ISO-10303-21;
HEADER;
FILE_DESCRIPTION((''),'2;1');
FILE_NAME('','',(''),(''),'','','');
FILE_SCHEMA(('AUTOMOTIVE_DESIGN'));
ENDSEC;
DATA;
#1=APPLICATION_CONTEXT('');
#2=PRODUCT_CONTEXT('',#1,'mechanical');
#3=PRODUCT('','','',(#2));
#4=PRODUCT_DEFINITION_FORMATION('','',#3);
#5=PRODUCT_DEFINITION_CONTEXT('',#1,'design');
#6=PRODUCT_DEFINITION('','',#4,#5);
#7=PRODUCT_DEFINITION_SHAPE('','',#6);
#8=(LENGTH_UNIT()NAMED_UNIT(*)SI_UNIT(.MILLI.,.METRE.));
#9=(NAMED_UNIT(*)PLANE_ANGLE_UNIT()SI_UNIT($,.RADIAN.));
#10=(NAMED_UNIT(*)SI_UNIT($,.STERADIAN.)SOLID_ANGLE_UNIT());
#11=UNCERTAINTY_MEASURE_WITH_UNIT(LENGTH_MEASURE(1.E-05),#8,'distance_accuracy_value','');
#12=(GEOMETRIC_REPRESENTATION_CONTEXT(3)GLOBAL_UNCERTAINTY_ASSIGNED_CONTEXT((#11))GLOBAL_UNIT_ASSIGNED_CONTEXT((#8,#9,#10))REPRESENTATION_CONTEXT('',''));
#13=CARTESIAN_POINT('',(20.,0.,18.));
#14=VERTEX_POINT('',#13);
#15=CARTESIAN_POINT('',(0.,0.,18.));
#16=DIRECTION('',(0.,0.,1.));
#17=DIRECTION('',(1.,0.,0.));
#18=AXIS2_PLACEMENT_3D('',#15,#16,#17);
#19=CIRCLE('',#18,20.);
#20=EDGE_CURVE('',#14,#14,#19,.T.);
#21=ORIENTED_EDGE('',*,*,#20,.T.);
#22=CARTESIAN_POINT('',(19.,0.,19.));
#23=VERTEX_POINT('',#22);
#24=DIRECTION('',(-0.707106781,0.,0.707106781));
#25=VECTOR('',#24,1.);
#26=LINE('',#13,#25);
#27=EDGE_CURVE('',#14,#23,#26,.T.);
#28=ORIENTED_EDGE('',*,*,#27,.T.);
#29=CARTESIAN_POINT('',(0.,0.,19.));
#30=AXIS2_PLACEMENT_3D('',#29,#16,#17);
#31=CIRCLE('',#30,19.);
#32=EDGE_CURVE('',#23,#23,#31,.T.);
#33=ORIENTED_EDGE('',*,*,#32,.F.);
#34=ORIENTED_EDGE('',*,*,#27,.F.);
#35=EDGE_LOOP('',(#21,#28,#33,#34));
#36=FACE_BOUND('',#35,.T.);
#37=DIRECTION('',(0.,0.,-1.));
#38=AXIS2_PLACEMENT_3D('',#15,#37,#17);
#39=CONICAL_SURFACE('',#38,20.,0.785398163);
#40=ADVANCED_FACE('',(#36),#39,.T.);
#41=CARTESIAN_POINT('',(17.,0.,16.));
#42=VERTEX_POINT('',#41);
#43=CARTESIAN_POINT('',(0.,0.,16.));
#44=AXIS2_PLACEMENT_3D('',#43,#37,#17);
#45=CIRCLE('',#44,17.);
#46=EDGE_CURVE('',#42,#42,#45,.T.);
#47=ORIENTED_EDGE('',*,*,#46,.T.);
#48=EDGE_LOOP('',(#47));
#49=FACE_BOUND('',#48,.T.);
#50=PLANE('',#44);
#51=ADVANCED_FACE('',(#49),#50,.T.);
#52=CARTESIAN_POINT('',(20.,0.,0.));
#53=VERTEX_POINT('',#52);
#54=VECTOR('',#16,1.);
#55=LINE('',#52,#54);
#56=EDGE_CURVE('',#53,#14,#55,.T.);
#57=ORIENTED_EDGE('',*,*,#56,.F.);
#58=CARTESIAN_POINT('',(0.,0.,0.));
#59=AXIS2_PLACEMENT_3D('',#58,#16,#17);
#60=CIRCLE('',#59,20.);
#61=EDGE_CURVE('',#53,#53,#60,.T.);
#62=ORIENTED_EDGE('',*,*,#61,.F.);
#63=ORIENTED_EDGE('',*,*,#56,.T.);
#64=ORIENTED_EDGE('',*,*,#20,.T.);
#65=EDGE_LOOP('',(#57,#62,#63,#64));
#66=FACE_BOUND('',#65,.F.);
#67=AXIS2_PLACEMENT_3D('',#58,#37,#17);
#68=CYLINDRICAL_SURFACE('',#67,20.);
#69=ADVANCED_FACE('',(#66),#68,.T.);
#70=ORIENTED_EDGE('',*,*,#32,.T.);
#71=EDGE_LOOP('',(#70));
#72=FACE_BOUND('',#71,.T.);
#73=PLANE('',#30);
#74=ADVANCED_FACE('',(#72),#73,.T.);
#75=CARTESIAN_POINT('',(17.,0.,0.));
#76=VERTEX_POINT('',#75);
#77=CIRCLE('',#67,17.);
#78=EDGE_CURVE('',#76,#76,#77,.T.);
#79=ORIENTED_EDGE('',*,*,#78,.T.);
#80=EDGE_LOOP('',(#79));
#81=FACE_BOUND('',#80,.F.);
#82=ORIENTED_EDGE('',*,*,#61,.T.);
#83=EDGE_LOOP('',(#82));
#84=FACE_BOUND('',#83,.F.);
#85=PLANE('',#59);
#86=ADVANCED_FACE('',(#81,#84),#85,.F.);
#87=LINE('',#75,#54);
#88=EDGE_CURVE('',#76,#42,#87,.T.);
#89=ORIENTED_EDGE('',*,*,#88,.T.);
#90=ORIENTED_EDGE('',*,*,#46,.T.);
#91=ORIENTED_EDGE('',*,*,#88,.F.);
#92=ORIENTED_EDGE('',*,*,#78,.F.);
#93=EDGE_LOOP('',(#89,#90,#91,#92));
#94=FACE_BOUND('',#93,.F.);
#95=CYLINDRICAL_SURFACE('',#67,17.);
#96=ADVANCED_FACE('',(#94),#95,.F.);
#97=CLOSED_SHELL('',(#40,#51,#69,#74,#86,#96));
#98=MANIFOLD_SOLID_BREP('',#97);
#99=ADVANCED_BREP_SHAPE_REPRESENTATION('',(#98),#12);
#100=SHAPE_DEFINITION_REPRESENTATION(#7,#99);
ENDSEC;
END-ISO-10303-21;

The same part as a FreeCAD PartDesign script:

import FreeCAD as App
import Part
import Sketcher
from FreeCAD import Vector
Q = App.Units.Quantity


def edges_at(feature, points):
    """Names of the edges that pass closest to the given points."""
    edges = feature.Shape.Edges
    near = lambda p: min(range(len(edges)), key=lambda i: edges[i].distToShape(Part.Vertex(*p))[0])
    return sorted({f"Edge{near(p) + 1}" for p in points})

doc = App.newDocument("Part")
body = doc.addObject("PartDesign::Body", "Body")

# Sketch on XY plane
sketch1 = body.newObject("Sketcher::SketchObject", "Sketch")
sketch1.AttachmentSupport = (doc.getObject("XY_Plane"), [""])
sketch1.MapMode = "FlatFace"
sketch1.addGeometry(Part.Circle(Vector(0, 0, 0), Vector(0, 0, 1), 20), False)
sketch1.addConstraint([
    Sketcher.Constraint("Coincident", 0, 3, -1, 1),
    Sketcher.Constraint("Diameter", 0, Q("40 mm")),
])
pad1 = body.newObject("PartDesign::Pad", "Pad")
pad1.Profile = sketch1
pad1.Length = 19

# Sketch on XY plane
sketch2 = body.newObject("Sketcher::SketchObject", "Sketch001")
sketch2.AttachmentSupport = (doc.getObject("XY_Plane"), [""])
sketch2.MapMode = "FlatFace"
sketch2.addGeometry(Part.Circle(Vector(0, 0, 0), Vector(0, 0, 1), 17), False)
sketch2.addConstraint([
    Sketcher.Constraint("Coincident", 0, 3, -1, 1),
    Sketcher.Constraint("Diameter", 0, Q("34 mm")),
])
pocket1 = body.newObject("PartDesign::Pocket", "Pocket")
pocket1.Profile = sketch2
pocket1.Length = 16
pocket1.Reversed = True
doc.recompute()

chamfer = body.newObject("PartDesign::Chamfer", "Chamfer")
chamfer.Base = (pocket1, edges_at(pocket1, [(-20, 0, 19)]))
chamfer.Size = 1

doc.recompute()
